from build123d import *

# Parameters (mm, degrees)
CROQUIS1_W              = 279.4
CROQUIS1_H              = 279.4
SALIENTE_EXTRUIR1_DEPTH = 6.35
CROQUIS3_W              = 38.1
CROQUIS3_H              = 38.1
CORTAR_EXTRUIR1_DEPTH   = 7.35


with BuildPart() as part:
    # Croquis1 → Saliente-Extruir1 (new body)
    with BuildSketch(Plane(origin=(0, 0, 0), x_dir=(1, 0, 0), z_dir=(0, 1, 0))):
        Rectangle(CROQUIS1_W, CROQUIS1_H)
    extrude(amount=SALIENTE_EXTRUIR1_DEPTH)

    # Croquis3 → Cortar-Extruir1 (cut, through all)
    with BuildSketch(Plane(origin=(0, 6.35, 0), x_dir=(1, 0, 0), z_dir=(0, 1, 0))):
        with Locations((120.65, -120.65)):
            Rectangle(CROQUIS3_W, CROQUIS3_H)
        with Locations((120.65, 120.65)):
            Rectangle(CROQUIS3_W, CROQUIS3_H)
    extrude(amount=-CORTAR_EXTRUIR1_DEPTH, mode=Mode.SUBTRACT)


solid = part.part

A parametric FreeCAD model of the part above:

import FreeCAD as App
import Part
import Sketcher
Q = App.Units.Quantity

doc = App.newDocument("Part")
body = doc.addObject("PartDesign::Body", "Body")

sketch1 = body.newObject("Sketcher::SketchObject", "Sketch")
sketch1.AttachmentSupport = (doc.getObject("XZ_Plane"), [""])
sketch1.MapMode = "FlatFace"
sketch1.addGeometry([
    Part.LineSegment(App.Vector(-140, -140, 0), App.Vector(-140, 140, 0)),
    Part.LineSegment(App.Vector(-140, 140, 0), App.Vector(140, 140, 0)),
    Part.LineSegment(App.Vector(140, 140, 0), App.Vector(140, -140, 0)),
    Part.LineSegment(App.Vector(140, -140, 0), App.Vector(-140, -140, 0)),
], False)
sketch1.addConstraint([
    Sketcher.Constraint("Coincident", 0, 2, 1, 1),
    Sketcher.Constraint("Coincident", 1, 2, 2, 1),
    Sketcher.Constraint("Coincident", 2, 2, 3, 1),
    Sketcher.Constraint("Coincident", 3, 2, 0, 1),
    Sketcher.Constraint("Vertical", 0),
    Sketcher.Constraint("Horizontal", 1),
    Sketcher.Constraint("Vertical", 2),
    Sketcher.Constraint("Horizontal", 3),
    Sketcher.Constraint("Symmetric", 0, 2, 2, 2, -1, 1),
    Sketcher.Constraint("Equal", 3, 0),
    Sketcher.Constraint("DistanceX", 1, 1, 1, 2, Q("11 in")),
])
pad1 = body.newObject("PartDesign::Pad", "Pad")
pad1.Profile = sketch1
pad1.Length = Q("0.25 in")
pad1.Reversed = True

sketch2 = body.newObject("Sketcher::SketchObject", "Sketch001")
sketch2.AttachmentSupport = (doc.getObject("XZ_Plane"), [""])
sketch2.MapMode = "FlatFace"
sketch2.AttachmentOffset = App.Placement(App.Vector(0, 0, -0.25 * 25.4), App.Rotation())
sketch2.addGeometry([
    Part.LineSegment(App.Vector(102, 102, 0), App.Vector(102, 140, 0)),
    Part.LineSegment(App.Vector(102, 140, 0), App.Vector(140, 140, 0)),
    Part.LineSegment(App.Vector(140, 140, 0), App.Vector(140, 102, 0)),
    Part.LineSegment(App.Vector(140, 102, 0), App.Vector(102, 102, 0)),
    Part.LineSegment(App.Vector(102, -140, 0), App.Vector(102, -102, 0)),
    Part.LineSegment(App.Vector(102, -102, 0), App.Vector(140, -102, 0)),
    Part.LineSegment(App.Vector(140, -102, 0), App.Vector(140, -140, 0)),
    Part.LineSegment(App.Vector(140, -140, 0), App.Vector(102, -140, 0)),
], False)
sketch2.addConstraint([
    Sketcher.Constraint("Coincident", 0, 2, 1, 1),
    Sketcher.Constraint("Coincident", 1, 2, 2, 1),
    Sketcher.Constraint("Coincident", 2, 2, 3, 1),
    Sketcher.Constraint("Coincident", 3, 2, 0, 1),
    Sketcher.Constraint("Coincident", 4, 2, 5, 1),
    Sketcher.Constraint("Coincident", 5, 2, 6, 1),
    Sketcher.Constraint("Coincident", 6, 2, 7, 1),
    Sketcher.Constraint("Coincident", 7, 2, 4, 1),
    Sketcher.Constraint("Vertical", 0),
    Sketcher.Constraint("Horizontal", 1),
    Sketcher.Constraint("Vertical", 2),
    Sketcher.Constraint("Horizontal", 3),
    Sketcher.Constraint("Vertical", 4),
    Sketcher.Constraint("Horizontal", 5),
    Sketcher.Constraint("Vertical", 6),
    Sketcher.Constraint("Horizontal", 7),
    Sketcher.Constraint("Symmetric", 3, 2, 4, 2, -1),
    Sketcher.Constraint("Symmetric", 1, 2, 6, 2, -1),
    Sketcher.Constraint("Equal", 7, 0),
    Sketcher.Constraint("DistanceX", 1, 1, 1, 2, Q("1.5 in")),
    Sketcher.Constraint("DistanceX", -1, 1, 0, 2, Q("4 in")),
    Sketcher.Constraint("DistanceY", -1, 1, 2, 2, Q("4 in")),
])
pocket1 = body.newObject("PartDesign::Pocket", "Pocket")
pocket1.Profile = sketch2
pocket1.Type = "ThroughAll"
pocket1.Reversed = True

doc.recompute()
